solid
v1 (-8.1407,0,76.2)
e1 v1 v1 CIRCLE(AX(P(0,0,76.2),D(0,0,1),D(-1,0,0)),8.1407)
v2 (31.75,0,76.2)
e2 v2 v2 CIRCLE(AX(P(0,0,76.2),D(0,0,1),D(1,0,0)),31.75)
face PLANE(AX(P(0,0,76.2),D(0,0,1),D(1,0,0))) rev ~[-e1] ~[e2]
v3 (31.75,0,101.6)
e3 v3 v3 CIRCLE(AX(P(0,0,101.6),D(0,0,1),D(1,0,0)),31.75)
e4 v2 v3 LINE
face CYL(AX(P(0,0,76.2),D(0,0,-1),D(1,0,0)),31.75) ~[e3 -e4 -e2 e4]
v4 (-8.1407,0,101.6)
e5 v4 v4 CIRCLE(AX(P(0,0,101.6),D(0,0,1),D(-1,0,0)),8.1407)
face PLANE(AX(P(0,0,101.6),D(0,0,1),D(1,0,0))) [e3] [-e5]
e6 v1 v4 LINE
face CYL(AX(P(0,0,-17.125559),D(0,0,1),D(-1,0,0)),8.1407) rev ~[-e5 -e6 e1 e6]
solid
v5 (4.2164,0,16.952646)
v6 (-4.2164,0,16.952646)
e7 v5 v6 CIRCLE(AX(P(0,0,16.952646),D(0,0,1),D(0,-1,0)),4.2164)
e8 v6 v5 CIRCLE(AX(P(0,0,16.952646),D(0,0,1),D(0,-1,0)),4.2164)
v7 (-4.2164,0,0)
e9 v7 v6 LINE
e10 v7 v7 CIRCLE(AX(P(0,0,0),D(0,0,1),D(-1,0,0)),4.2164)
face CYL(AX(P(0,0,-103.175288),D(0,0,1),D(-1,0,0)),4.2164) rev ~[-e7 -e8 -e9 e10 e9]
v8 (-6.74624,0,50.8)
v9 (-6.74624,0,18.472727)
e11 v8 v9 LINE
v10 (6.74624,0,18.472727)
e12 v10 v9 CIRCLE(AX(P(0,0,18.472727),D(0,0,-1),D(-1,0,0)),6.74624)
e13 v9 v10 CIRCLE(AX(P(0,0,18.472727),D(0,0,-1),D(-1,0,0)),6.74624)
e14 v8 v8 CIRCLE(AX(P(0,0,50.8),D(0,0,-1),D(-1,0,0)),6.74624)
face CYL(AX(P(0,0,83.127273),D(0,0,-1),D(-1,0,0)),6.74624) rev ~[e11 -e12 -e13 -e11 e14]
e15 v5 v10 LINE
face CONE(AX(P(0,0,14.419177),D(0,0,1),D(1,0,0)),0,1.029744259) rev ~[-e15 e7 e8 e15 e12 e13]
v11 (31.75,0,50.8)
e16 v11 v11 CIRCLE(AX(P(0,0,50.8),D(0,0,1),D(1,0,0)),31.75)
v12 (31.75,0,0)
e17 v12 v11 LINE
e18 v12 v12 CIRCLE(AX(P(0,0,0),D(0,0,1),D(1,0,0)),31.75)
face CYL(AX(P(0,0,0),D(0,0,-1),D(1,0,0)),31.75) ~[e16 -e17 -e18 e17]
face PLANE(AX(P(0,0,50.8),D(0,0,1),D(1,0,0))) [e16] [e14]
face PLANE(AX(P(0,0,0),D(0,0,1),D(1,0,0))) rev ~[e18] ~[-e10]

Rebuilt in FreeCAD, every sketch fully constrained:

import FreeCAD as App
import Part
import Sketcher

V = App.Vector
Q = App.Units.Quantity

doc = App.newDocument("Part")
body = doc.addObject("PartDesign::Body", "Body")

# Sketch on XY plane
sketch1 = body.newObject("Sketcher::SketchObject", "Sketch")
sketch1.AttachmentSupport = (doc.getObject("XY_Plane"), [""])
sketch1.MapMode = "FlatFace"
sketch1.addGeometry(Part.Circle(V(0, 0, 0), V(0, 0, 1), 32), False)
sketch1.addConstraint([
    Sketcher.Constraint("Coincident", 0, 3, -1, 1),
    Sketcher.Constraint("Diameter", 0, Q("2.5 in")),
])
pad1 = body.newObject("PartDesign::Pad", "Pad")
pad1.Profile = sketch1
pad1.Length = Q("2 in")

# Sketch on XY plane
sketch2 = body.newObject("Sketcher::SketchObject", "Sketch001")
sketch2.AttachmentSupport = (doc.getObject("XY_Plane"), [""])
sketch2.MapMode = "FlatFace"
sketch2.addGeometry(Part.Circle(V(0, 0, 0), V(0, 0, 1), 4.2), False)
sketch2.addConstraint([
    Sketcher.Constraint("Coincident", 0, 3, -1, 1),
    Sketcher.Constraint("Diameter", 0, Q("0.332 in")),
])
doc.recompute()
hole = body.newObject("PartDesign::Hole", "Hole")
hole.Profile = sketch2
hole.ThreadType = "None"
hole.Diameter = Q("0.332 in")
hole.DepthType = "ThroughAll"
hole.Reversed = True

# Sketch on XY plane
sketch3 = body.newObject("Sketcher::SketchObject", "Sketch002")
sketch3.AttachmentSupport = (doc.getObject("XY_Plane"), [""])
sketch3.MapMode = "FlatFace"
sketch3.AttachmentOffset = App.Placement(V(0, 0, 2 * 25.4), App.Rotation())
sketch3.addGeometry(Part.Circle(V(0, 0, 0), V(0, 0, 1), 7), False)
sketch3.addConstraint([
    Sketcher.Constraint("Coincident", 0, 3, -1, 1),
    Sketcher.Constraint("Diameter", 0, Q("0.5312 in")),
])
doc.recompute()
hole2 = body.newObject("PartDesign::Hole", "Hole001")
hole2.Profile = sketch3
hole2.ThreadType = "None"
hole2.Diameter = Q("0.5312 in")
hole2.DepthType = "Dimension"
hole2.Depth = 32.327273
hole2.DrillPoint = "Angled"
hole2.DrillPointAngle = 118
body2 = doc.addObject("PartDesign::Body", "Body001")

# Sketch on XY plane
sketch4 = body2.newObject("Sketcher::SketchObject", "Sketch003")
sketch4.AttachmentSupport = (doc.getObject("XY_Plane001"), [""])
sketch4.MapMode = "FlatFace"
sketch4.AttachmentOffset = App.Placement(V(0, 0, 3 * 25.4), App.Rotation())
sketch4.addGeometry(Part.Circle(V(0, 0, 0), V(0, 0, 1), 32), False)
sketch4.addConstraint([
    Sketcher.Constraint("Coincident", 0, 3, -1, 1),
    Sketcher.Constraint("Diameter", 0, Q("2.5 in")),
])
pad2 = body2.newObject("PartDesign::Pad", "Pad001")
pad2.Profile = sketch4
pad2.Length = Q("1 in")

# Sketch on XY plane
sketch5 = body2.newObject("Sketcher::SketchObject", "Sketch004")
sketch5.AttachmentSupport = (doc.getObject("XY_Plane001"), [""])
sketch5.MapMode = "FlatFace"
sketch5.AttachmentOffset = App.Placement(V(0, 0, 3 * 25.4), App.Rotation())
sketch5.addGeometry(Part.Circle(V(0, 0, 0), V(0, 0, 1), 8), False)
sketch5.addConstraint([
    Sketcher.Constraint("Coincident", 0, 3, -1, 1),
    Sketcher.Constraint("Diameter", 0, Q("0.641 in")),
])
doc.recompute()
hole3 = body2.newObject("PartDesign::Hole", "Hole002")
hole3.Profile = sketch5
hole3.ThreadType = "None"
hole3.Diameter = Q("0.641 in")
hole3.DepthType = "ThroughAll"
hole3.Reversed = True

doc.recompute()
